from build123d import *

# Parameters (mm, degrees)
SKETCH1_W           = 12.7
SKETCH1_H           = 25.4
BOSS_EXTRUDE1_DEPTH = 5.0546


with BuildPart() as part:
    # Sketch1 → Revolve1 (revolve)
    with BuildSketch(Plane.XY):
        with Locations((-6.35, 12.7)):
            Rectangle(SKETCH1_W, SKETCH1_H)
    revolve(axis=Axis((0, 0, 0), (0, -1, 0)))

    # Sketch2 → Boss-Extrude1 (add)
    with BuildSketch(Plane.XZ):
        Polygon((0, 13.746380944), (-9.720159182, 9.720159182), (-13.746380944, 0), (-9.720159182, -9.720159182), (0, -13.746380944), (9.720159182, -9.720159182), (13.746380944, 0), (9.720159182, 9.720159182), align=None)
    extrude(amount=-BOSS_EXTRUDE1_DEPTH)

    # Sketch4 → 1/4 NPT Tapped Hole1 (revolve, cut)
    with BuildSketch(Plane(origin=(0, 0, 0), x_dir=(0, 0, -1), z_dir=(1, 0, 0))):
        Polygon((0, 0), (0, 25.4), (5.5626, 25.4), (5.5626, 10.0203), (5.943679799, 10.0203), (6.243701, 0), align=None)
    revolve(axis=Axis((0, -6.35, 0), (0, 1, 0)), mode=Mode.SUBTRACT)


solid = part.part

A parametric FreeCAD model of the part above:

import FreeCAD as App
import Part
import Sketcher
from FreeCAD import Vector
Q = App.Units.Quantity


def add_polygon(sketch, points):
    """Adds a closed chain of lines whose ends are joined by coincident constraints."""
    first, n = sketch.GeometryCount, len(points)
    for a, b in zip(points, points[1:] + points[:1]):
        sketch.addGeometry(Part.LineSegment(App.Vector(*a, 0), App.Vector(*b, 0)), False)
    for i in range(n):
        sketch.addConstraint(Sketcher.Constraint("Coincident", first + i, 2, first + (i + 1) % n, 1))

doc = App.newDocument("Part")
body = doc.addObject("PartDesign::Body", "Body")

# Sketch on XY plane
sketch1 = body.newObject("Sketcher::SketchObject", "Sketch")
sketch1.AttachmentSupport = (doc.getObject("XY_Plane"), [""])
sketch1.MapMode = "FlatFace"
add_polygon(sketch1, [(-13, 25), (-13, 0), (0, 0), (0, 25)])  # lines 0-3
sketch1.addConstraint([
    Sketcher.Constraint("Vertical", 0),
    Sketcher.Constraint("Horizontal", 1),
    Sketcher.Constraint("Vertical", 2),
    Sketcher.Constraint("Horizontal", 3),
    Sketcher.Constraint("Coincident", 1, 2, -1, 1),
    Sketcher.Constraint("DistanceY", 0, 2, 0, 1, Q("1 in")),
    Sketcher.Constraint("DistanceX", 1, 1, 1, 2, Q("0.5 in")),
])
revolution = body.newObject("PartDesign::Revolution", "Revolution")
revolution.Profile = sketch1
revolution.ReferenceAxis = (sketch1, ["V_Axis"])
revolution.Angle = 360

# Sketch on XZ plane
sketch2 = body.newObject("Sketcher::SketchObject", "Sketch001")
sketch2.AttachmentSupport = (doc.getObject("XZ_Plane"), [""])
sketch2.MapMode = "FlatFace"
add_polygon(sketch2, [(0, 14), (-10, 10), (-14, 0), (-10, -10), (0, -14), (10, -10), (14, 0), (10, 10)])  # lines 0-7
sketch2.addConstraint([
    Sketcher.Constraint("Symmetric", 0, 2, 4, 2, -1, 1),
    Sketcher.Constraint("Symmetric", 1, 2, 5, 2, -1, 1),
    Sketcher.Constraint("Symmetric", 2, 2, 6, 2, -1, 1),
    Sketcher.Constraint("Symmetric", 3, 2, 7, 2, -1, 1),
    Sketcher.Constraint("Symmetric", 2, 2, 4, 2, -2),
    Sketcher.Constraint("PointOnObject", 1, 2, -1),
    Sketcher.Constraint("PointOnObject", 3, 2, -2),
    Sketcher.Constraint("Perpendicular", 0, 2),
    Sketcher.Constraint("Equal", 0, 1),
    Sketcher.Constraint("Angle", 0, Q("-157.5 deg")),
    Sketcher.Constraint("DistanceX", 0, 2, -1, 1, 9.720159),
])
pad1 = body.newObject("PartDesign::Pad", "Pad")
pad1.Profile = sketch2
pad1.Length = Q("0.199 in")
pad1.Reversed = True

# Sketch on YZ plane
sketch3 = body.newObject("Sketcher::SketchObject", "Sketch002")
sketch3.AttachmentSupport = (doc.getObject("YZ_Plane"), [""])
sketch3.MapMode = "FlatFace"
add_polygon(sketch3, [(25.4, 0), (0, 0), (0, -6.24), (10.02, -5.94), (10.02, -5.56), (25.4, -5.56)])  # lines 0-5
sketch3.addConstraint([
    Sketcher.Constraint("Horizontal", 0),
    Sketcher.Constraint("Vertical", 1),
    Sketcher.Constraint("Vertical", 3),
    Sketcher.Constraint("Horizontal", 4),
    Sketcher.Constraint("Vertical", 5),
    Sketcher.Constraint("Coincident", 0, 2, -1, 1),
    Sketcher.Constraint("DistanceX", 0, 2, 0, 1, Q("1 in")),
    Sketcher.Constraint("DistanceY", 5, 1, 5, 2, Q("0.219 in")),
    Sketcher.Constraint("DistanceX", 4, 1, 4, 2, Q("0.6055 in")),
    Sketcher.Constraint("DistanceY", 1, 2, 1, 1, 6.243701),
    Sketcher.Constraint("DistanceY", 3, 1, 3, 2, 0.38108),
])
groove = body.newObject("PartDesign::Groove", "Groove")
groove.Profile = sketch3
groove.ReferenceAxis = (sketch3, ["H_Axis"])
groove.Angle = 360

doc.recompute()
